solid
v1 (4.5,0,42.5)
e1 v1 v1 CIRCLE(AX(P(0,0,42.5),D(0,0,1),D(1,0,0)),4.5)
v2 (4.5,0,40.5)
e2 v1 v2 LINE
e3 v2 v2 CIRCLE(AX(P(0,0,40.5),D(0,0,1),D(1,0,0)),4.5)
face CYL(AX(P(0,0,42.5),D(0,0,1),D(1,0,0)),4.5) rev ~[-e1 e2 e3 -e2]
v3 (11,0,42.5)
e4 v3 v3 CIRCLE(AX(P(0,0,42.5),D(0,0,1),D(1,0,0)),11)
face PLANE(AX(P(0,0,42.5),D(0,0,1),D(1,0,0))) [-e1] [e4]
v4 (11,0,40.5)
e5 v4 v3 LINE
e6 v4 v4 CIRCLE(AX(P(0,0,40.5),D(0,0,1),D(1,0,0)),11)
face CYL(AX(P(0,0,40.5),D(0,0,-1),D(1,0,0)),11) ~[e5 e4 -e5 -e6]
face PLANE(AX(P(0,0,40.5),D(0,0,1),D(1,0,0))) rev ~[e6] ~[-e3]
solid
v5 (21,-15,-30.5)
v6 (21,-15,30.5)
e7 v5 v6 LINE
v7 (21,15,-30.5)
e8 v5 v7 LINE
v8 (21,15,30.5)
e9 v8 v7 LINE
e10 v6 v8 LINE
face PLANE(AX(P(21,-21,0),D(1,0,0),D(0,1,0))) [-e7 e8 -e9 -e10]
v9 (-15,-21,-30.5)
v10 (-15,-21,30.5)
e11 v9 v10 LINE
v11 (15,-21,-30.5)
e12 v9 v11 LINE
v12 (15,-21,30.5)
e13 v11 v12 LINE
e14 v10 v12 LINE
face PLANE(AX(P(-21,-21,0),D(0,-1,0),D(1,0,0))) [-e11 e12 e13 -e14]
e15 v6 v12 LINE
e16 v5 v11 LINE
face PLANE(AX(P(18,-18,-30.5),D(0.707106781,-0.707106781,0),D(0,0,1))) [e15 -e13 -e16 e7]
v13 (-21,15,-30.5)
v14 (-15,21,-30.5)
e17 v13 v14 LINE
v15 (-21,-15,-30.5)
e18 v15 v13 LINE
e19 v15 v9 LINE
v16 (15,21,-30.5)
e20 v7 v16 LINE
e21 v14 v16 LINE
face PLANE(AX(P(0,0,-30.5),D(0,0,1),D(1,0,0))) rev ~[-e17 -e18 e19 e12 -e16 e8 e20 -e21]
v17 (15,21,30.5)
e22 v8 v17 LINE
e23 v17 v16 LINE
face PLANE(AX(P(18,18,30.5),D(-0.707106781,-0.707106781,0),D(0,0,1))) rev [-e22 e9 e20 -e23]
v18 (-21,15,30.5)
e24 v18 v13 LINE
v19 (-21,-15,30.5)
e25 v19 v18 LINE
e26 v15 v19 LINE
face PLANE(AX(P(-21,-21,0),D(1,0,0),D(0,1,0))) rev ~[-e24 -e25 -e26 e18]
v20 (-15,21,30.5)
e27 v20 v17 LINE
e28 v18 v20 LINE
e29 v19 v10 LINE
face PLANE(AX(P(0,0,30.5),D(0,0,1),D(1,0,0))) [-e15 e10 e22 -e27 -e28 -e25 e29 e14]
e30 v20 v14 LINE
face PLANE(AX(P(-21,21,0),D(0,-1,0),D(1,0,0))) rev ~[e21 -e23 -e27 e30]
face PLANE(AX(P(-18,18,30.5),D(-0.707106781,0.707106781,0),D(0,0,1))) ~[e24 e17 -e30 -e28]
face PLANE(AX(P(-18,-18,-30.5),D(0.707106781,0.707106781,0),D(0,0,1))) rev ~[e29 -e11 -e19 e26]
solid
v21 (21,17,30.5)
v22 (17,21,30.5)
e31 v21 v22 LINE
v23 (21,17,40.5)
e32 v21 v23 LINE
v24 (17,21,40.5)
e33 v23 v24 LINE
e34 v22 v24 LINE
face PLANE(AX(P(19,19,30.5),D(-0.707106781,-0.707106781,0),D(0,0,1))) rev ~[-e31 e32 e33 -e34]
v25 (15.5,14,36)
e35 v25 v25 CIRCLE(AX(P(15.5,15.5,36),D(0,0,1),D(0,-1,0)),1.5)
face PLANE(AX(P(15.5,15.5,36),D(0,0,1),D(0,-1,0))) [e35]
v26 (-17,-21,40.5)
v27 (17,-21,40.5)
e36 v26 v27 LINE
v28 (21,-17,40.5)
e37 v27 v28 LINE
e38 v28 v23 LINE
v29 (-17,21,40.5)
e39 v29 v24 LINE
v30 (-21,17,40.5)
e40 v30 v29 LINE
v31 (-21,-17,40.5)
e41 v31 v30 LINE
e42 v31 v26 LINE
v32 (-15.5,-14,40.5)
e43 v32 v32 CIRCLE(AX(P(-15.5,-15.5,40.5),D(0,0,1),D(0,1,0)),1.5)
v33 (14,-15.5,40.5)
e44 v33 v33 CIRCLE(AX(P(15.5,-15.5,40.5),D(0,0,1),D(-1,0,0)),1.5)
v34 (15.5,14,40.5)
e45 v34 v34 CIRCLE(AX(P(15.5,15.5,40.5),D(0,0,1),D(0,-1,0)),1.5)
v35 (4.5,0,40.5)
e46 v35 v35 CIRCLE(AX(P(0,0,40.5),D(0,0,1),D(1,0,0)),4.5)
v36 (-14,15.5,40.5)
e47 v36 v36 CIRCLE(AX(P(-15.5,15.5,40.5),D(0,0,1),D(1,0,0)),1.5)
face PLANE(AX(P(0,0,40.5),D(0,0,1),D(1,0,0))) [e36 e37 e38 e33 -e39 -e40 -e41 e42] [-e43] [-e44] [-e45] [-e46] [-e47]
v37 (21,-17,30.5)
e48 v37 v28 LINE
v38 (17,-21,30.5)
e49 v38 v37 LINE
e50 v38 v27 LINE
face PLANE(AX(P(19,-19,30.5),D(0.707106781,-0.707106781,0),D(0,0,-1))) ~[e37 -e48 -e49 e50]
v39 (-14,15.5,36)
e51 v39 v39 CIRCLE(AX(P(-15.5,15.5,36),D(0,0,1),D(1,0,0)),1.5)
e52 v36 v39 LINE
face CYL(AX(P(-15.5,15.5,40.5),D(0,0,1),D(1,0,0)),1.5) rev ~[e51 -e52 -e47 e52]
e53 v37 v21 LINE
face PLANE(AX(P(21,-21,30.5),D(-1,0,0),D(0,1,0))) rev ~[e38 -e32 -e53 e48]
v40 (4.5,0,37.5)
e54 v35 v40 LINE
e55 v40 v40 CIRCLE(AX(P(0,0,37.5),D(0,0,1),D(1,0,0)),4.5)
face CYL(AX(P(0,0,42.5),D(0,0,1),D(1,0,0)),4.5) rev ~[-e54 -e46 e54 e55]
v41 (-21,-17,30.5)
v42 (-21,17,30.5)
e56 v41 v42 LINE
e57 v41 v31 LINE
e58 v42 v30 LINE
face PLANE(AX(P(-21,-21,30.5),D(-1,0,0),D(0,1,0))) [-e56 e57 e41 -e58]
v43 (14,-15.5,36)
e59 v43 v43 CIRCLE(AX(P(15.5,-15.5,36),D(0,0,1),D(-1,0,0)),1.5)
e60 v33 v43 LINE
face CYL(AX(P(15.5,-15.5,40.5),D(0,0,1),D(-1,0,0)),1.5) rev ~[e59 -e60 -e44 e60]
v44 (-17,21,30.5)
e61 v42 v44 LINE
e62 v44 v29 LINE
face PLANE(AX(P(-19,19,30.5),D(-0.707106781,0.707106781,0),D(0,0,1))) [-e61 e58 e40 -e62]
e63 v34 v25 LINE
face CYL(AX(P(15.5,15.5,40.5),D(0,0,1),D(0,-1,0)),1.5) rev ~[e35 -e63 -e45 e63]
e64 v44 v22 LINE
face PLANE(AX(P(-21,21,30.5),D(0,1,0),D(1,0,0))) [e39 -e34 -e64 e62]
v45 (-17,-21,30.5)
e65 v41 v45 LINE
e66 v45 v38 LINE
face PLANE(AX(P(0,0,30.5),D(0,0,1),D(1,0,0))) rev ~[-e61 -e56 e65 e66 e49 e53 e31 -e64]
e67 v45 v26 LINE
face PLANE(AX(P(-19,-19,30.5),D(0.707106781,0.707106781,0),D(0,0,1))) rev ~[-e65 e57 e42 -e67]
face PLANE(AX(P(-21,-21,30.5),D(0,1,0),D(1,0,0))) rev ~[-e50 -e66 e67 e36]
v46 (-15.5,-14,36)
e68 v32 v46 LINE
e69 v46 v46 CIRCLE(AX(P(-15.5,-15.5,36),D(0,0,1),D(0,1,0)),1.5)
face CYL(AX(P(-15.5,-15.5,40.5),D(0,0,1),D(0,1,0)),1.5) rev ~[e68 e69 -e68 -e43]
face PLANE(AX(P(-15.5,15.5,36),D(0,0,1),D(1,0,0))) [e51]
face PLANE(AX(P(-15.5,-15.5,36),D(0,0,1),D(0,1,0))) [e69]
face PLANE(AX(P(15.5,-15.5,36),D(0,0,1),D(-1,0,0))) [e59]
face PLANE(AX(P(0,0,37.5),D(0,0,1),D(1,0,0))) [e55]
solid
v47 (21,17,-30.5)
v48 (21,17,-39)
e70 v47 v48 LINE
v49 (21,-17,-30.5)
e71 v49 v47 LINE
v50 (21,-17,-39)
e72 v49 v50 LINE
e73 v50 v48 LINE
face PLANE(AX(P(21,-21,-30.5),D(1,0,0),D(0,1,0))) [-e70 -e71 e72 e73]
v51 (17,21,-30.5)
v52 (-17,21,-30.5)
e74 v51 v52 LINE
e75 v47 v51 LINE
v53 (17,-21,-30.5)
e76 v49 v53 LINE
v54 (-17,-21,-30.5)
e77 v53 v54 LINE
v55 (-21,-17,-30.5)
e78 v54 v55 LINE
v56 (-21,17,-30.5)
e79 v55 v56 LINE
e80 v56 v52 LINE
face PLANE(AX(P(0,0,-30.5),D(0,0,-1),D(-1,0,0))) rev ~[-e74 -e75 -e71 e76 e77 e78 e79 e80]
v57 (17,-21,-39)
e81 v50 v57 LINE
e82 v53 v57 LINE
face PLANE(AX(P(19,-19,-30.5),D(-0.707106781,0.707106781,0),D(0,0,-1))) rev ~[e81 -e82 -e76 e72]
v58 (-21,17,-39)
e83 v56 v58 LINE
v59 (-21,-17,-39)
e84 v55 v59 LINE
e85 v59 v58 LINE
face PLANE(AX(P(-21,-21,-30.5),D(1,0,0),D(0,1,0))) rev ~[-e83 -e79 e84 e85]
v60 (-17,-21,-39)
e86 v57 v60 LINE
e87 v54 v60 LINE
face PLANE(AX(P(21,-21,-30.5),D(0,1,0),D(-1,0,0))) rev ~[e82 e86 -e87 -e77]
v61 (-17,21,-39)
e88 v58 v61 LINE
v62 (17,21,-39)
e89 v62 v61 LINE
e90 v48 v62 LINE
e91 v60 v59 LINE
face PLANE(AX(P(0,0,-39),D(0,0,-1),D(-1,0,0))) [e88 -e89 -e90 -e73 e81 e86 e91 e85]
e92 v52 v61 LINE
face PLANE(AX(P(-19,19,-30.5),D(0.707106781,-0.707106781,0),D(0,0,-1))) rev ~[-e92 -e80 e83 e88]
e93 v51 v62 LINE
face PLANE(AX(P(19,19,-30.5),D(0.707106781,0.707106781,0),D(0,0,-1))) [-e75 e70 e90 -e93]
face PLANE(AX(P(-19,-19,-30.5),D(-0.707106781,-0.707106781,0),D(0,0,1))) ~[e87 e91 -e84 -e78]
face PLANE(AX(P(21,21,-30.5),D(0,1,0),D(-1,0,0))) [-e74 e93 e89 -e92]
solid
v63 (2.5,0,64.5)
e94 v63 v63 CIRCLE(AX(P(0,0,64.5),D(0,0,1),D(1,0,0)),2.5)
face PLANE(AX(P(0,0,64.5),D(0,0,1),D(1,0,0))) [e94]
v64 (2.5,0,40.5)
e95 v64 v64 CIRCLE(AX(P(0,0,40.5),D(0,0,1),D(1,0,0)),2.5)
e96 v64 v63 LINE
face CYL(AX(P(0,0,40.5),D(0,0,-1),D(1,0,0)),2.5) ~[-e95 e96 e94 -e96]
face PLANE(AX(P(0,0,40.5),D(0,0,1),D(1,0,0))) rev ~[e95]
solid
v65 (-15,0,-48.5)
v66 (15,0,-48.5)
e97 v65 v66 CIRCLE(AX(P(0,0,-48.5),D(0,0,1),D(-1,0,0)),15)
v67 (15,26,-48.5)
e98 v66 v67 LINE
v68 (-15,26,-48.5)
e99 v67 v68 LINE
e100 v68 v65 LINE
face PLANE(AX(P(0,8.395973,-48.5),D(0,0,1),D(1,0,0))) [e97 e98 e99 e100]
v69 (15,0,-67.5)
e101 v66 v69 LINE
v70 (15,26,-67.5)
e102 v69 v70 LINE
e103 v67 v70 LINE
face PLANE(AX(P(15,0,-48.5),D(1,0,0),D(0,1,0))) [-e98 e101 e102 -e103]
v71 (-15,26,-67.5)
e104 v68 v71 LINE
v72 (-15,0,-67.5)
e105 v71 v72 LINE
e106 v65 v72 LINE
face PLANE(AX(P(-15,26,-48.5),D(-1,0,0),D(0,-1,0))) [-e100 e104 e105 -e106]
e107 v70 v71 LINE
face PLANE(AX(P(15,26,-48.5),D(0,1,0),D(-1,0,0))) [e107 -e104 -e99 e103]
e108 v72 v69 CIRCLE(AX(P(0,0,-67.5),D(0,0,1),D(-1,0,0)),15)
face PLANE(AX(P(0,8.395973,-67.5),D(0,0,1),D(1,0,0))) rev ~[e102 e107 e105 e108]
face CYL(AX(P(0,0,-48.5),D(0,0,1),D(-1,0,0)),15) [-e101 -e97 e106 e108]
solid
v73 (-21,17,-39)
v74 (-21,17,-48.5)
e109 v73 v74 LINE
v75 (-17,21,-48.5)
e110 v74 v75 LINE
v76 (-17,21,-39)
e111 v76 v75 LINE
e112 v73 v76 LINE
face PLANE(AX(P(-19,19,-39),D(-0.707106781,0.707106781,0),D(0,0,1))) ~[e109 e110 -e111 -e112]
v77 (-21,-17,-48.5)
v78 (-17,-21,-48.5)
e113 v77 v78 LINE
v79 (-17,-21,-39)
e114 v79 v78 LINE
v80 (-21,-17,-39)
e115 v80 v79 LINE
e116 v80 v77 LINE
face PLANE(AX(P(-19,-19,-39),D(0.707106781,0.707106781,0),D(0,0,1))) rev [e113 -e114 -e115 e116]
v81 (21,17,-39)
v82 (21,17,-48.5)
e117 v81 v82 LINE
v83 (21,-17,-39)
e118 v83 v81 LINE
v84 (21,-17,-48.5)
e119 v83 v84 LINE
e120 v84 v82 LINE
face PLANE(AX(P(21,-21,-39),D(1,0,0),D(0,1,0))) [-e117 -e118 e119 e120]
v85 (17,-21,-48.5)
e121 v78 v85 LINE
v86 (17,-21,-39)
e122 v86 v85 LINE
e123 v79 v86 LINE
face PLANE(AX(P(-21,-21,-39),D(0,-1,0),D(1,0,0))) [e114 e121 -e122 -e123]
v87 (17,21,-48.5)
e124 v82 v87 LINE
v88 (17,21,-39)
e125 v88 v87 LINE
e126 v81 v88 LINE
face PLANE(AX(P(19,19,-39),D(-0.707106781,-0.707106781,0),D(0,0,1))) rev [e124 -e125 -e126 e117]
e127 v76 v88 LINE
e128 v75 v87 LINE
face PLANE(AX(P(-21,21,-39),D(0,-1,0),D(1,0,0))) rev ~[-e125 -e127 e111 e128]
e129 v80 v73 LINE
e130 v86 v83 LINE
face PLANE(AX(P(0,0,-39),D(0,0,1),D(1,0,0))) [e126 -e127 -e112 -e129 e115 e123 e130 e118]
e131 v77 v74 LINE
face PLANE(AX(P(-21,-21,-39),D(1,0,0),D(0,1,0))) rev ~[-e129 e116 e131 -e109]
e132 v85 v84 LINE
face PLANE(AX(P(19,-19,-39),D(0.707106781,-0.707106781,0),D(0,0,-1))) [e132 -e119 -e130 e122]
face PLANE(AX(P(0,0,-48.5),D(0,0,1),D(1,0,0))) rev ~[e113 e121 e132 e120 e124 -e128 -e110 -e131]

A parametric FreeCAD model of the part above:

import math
import FreeCAD as App
import Part
import Sketcher


def edges_at(feature, points):
    """Names of the edges that pass closest to the given points."""
    edges = feature.Shape.Edges
    near = lambda p: min(range(len(edges)), key=lambda i: edges[i].distToShape(Part.Vertex(*p))[0])
    return sorted({f"Edge{near(p) + 1}" for p in points})


def add_polygon(sketch, points):
    """Adds a closed chain of lines whose ends are joined by coincident constraints."""
    first, n = sketch.GeometryCount, len(points)
    for a, b in zip(points, points[1:] + points[:1]):
        sketch.addGeometry(Part.LineSegment(App.Vector(*a, 0), App.Vector(*b, 0)), False)
    for i in range(n):
        sketch.addConstraint(Sketcher.Constraint("Coincident", first + i, 2, first + (i + 1) % n, 1))

doc = App.newDocument("Part")
body = doc.addObject("PartDesign::Body", "Body")

# Sketch on XY plane
sketch1 = body.newObject("Sketcher::SketchObject", "Sketch")
sketch1.AttachmentSupport = (doc.getObject("XY_Plane"), [""])
sketch1.MapMode = "FlatFace"
add_polygon(sketch1, [(-21, 21), (-21, -21), (21, -21), (21, 21)])  # lines 0-3
sketch1.addConstraint([
    Sketcher.Constraint("Vertical", 0),
    Sketcher.Constraint("Horizontal", 1),
    Sketcher.Constraint("Vertical", 2),
    Sketcher.Constraint("Horizontal", 3),
    Sketcher.Constraint("Symmetric", 0, 2, 2, 2, -1, 1),
    Sketcher.Constraint("Equal", 3, 0),
    Sketcher.Constraint("DistanceX", 1, 1, 1, 2, 42.0),
])
pad1 = body.newObject("PartDesign::Pad", "Pad")
pad1.Profile = sketch1
pad1.Length = 61
pad1.Midplane = True
doc.recompute()

chamfer = body.newObject("PartDesign::Chamfer", "Chamfer")
chamfer.Base = (pad1, edges_at(pad1, [
    (21, -21, 0),
    (-21, -21, 0),
    (-21, 21, 0),
    (21, 21, 0),
]))
chamfer.Size = 6
body2 = doc.addObject("PartDesign::Body", "Body001")

# Sketch on XY plane
sketch2 = body2.newObject("Sketcher::SketchObject", "Sketch001")
sketch2.AttachmentSupport = (doc.getObject("XY_Plane001"), [""])
sketch2.MapMode = "FlatFace"
sketch2.AttachmentOffset = App.Placement(App.Vector(0, 0, 30.5), App.Rotation())
add_polygon(sketch2, [(-21, 21), (-21, -21), (21, -21), (21, 21)])  # lines 0-3
sketch2.addConstraint([
    Sketcher.Constraint("Vertical", 0),
    Sketcher.Constraint("Horizontal", 1),
    Sketcher.Constraint("Vertical", 2),
    Sketcher.Constraint("Horizontal", 3),
    Sketcher.Constraint("Symmetric", 0, 2, 2, 2, -1, 1),
    Sketcher.Constraint("Equal", 3, 0),
    Sketcher.Constraint("DistanceX", 1, 1, 1, 2, 42.0),
])
pad2 = body2.newObject("PartDesign::Pad", "Pad001")
pad2.Profile = sketch2
pad2.Length = 10
doc.recompute()

chamfer2 = body2.newObject("PartDesign::Chamfer", "Chamfer001")
chamfer2.Base = (pad2, edges_at(pad2, [
    (21, -21, 35.5),
    (-21, -21, 35.5),
    (-21, 21, 35.5),
    (21, 21, 35.5),
]))
chamfer2.Size = 4
body3 = doc.addObject("PartDesign::Body", "Body002")

# Sketch on XY plane
sketch3 = body3.newObject("Sketcher::SketchObject", "Sketch002")
sketch3.AttachmentSupport = (doc.getObject("XY_Plane002"), [""])
sketch3.MapMode = "FlatFace"
sketch3.AttachmentOffset = App.Placement(App.Vector(0, 0, -30.5), App.Rotation())
add_polygon(sketch3, [(21, 21), (21, -21), (-21, -21), (-21, 21)])  # lines 0-3
sketch3.addConstraint([
    Sketcher.Constraint("Vertical", 0),
    Sketcher.Constraint("Horizontal", 1),
    Sketcher.Constraint("Vertical", 2),
    Sketcher.Constraint("Horizontal", 3),
    Sketcher.Constraint("Symmetric", 0, 2, 2, 2, -1, 1),
    Sketcher.Constraint("Equal", 3, 0),
    Sketcher.Constraint("DistanceX", 1, 2, 1, 1, 42.0),
])
pad3 = body3.newObject("PartDesign::Pad", "Pad002")
pad3.Profile = sketch3
pad3.Length = 8.5
pad3.Reversed = True
doc.recompute()

chamfer3 = body3.newObject("PartDesign::Chamfer", "Chamfer002")
chamfer3.Base = (pad3, edges_at(pad3, [
    (-21, -21, -34.75),
    (21, -21, -34.75),
    (21, 21, -34.75),
    (-21, 21, -34.75),
]))
chamfer3.Size = 4
body4 = doc.addObject("PartDesign::Body", "Body003")

# Sketch on XY plane
sketch4 = body4.newObject("Sketcher::SketchObject", "Sketch003")
sketch4.AttachmentSupport = (doc.getObject("XY_Plane003"), [""])
sketch4.MapMode = "FlatFace"
sketch4.AttachmentOffset = App.Placement(App.Vector(0, 0, -39), App.Rotation())
add_polygon(sketch4, [(-21, 21), (-21, -21), (21, -21), (21, 21)])  # lines 0-3
sketch4.addConstraint([
    Sketcher.Constraint("Vertical", 0),
    Sketcher.Constraint("Horizontal", 1),
    Sketcher.Constraint("Vertical", 2),
    Sketcher.Constraint("Horizontal", 3),
    Sketcher.Constraint("Symmetric", 0, 2, 2, 2, -1, 1),
    Sketcher.Constraint("Equal", 3, 0),
    Sketcher.Constraint("DistanceX", 1, 1, 1, 2, 42.0),
])
pad4 = body4.newObject("PartDesign::Pad", "Pad003")
pad4.Profile = sketch4
pad4.Length = 9.5
pad4.Reversed = True
doc.recompute()

chamfer4 = body4.newObject("PartDesign::Chamfer", "Chamfer003")
chamfer4.Base = (pad4, edges_at(pad4, [
    (21, -21, -43.75),
    (-21, -21, -43.75),
    (-21, 21, -43.75),
    (21, 21, -43.75),
]))
chamfer4.Size = 4
body5 = doc.addObject("PartDesign::Body", "Body004")

# Sketch on XY plane
sketch5 = body5.newObject("Sketcher::SketchObject", "Sketch004")
sketch5.AttachmentSupport = (doc.getObject("XY_Plane004"), [""])
sketch5.MapMode = "FlatFace"
sketch5.AttachmentOffset = App.Placement(App.Vector(0, 0, 40.5), App.Rotation())
sketch5.addGeometry(Part.Circle(App.Vector(0, 0, 0), App.Vector(0, 0, 1), 11), False)
sketch5.addConstraint([
    Sketcher.Constraint("Coincident", 0, 3, -1, 1),
    Sketcher.Constraint("Diameter", 0, 22.0),
])
pad5 = body5.newObject("PartDesign::Pad", "Pad004")
pad5.Profile = sketch5
pad5.Length = 2
body6 = doc.addObject("PartDesign::Body", "Body005")

# Sketch on XY plane
sketch6 = body6.newObject("Sketcher::SketchObject", "Sketch005")
sketch6.AttachmentSupport = (doc.getObject("XY_Plane005"), [""])
sketch6.MapMode = "FlatFace"
sketch6.AttachmentOffset = App.Placement(App.Vector(0, 0, 42.5), App.Rotation())
sketch6.addGeometry(Part.Circle(App.Vector(0, 0, 0), App.Vector(0, 0, 1), 4.5), False)
sketch6.addConstraint([
    Sketcher.Constraint("Coincident", 0, 3, -1, 1),
    Sketcher.Constraint("Diameter", 0, 9.0),
])
pad6 = body6.newObject("PartDesign::Pad", "Pad005")
pad6.Profile = sketch6
pad6.Length = 5
pad6.Reversed = True
doc.recompute()

body7 = doc.addObject("PartDesign::Body", "Body006")
body7.BaseFeature = body6
boolean = body2.newObject("PartDesign::Boolean", "Boolean")
boolean.Type = "Cut"
boolean.addObjects([body7])
doc.recompute()

# Sketch on XY plane
sketch7 = body2.newObject("Sketcher::SketchObject", "Sketch006")
sketch7.AttachmentSupport = (doc.getObject("XY_Plane001"), [""])
sketch7.MapMode = "FlatFace"
sketch7.AttachmentOffset = App.Placement(App.Vector(0, 0, 40.5), App.Rotation())
sketch7.addGeometry(Part.Circle(App.Vector(-15.5, 15.5, 0), App.Vector(0, 0, 1), 1.5), False)
sketch7.addConstraint([
    Sketcher.Constraint("Diameter", 0, 3.0),
    Sketcher.Constraint("DistanceX", 0, 3, -1, 1, 15.5),
    Sketcher.Constraint("DistanceY", -1, 1, 0, 3, 15.5),
])
pocket1 = body2.newObject("PartDesign::Pocket", "Pocket")
pocket1.Profile = sketch7
pocket1.Length = 4.5
doc.recompute()

polarpattern = body2.newObject("PartDesign::PolarPattern", "PolarPattern")
polarpattern.Originals = [pocket1]
polarpattern.Axis = (doc.getObject("Z_Axis001"), [""])
polarpattern.Angle = 360
polarpattern.Occurrences = 4
body2.Tip = polarpattern
doc.recompute()

boolean2 = body5.newObject("PartDesign::Boolean", "Boolean001")
boolean2.Type = "Cut"
boolean2.addObjects([body6])
body8 = doc.addObject("PartDesign::Body", "Body007")

# Sketch on XY plane
sketch8 = body8.newObject("Sketcher::SketchObject", "Sketch007")
sketch8.AttachmentSupport = (doc.getObject("XY_Plane007"), [""])
sketch8.MapMode = "FlatFace"
sketch8.AttachmentOffset = App.Placement(App.Vector(0, 0, 40.5), App.Rotation())
sketch8.addGeometry(Part.Circle(App.Vector(0, 0, 0), App.Vector(0, 0, 1), 2.5), False)
sketch8.addConstraint([
    Sketcher.Constraint("Coincident", 0, 3, -1, 1),
    Sketcher.Constraint("Diameter", 0, 5.0),
])
pad7 = body8.newObject("PartDesign::Pad", "Pad006")
pad7.Profile = sketch8
pad7.Length = 24
body9 = doc.addObject("PartDesign::Body", "Body008")

# Sketch on XY plane
sketch9 = body9.newObject("Sketcher::SketchObject", "Sketch008")
sketch9.AttachmentSupport = (doc.getObject("XY_Plane008"), [""])
sketch9.MapMode = "FlatFace"
sketch9.AttachmentOffset = App.Placement(App.Vector(0, 0, -48.5), App.Rotation())
sketch9.addGeometry([
    Part.LineSegment(App.Vector(15, 26, 0), App.Vector(15, 0, 0)),
    Part.ArcOfCircle(Part.Circle(App.Vector(0, 0, 0), App.Vector(0, 0, 1), 15), math.radians(180), math.radians(360)),
    Part.LineSegment(App.Vector(-15, 0, 0), App.Vector(-15, 26, 0)),
    Part.LineSegment(App.Vector(-15, 26, 0), App.Vector(15, 26, 0)),
], False)
sketch9.addConstraint([
    Sketcher.Constraint("Tangent", 0, 2, 1, 2),
    Sketcher.Constraint("Tangent", 1, 1, 2, 1),
    Sketcher.Constraint("Coincident", 2, 2, 3, 1),
    Sketcher.Constraint("Coincident", 3, 2, 0, 1),
    Sketcher.Constraint("Vertical", 0),
    Sketcher.Constraint("Vertical", 2),
    Sketcher.Constraint("Horizontal", 3),
    Sketcher.Constraint("Coincident", 1, 3, -1, 1),
    Sketcher.Constraint("Radius", 1, 15.0),
    Sketcher.Constraint("DistanceY", 0, 2, 0, 1, 26.0),
])
pad8 = body9.newObject("PartDesign::Pad", "Pad007")
pad8.Profile = sketch9
pad8.Length = 19
pad8.Reversed = True

doc.recompute()
